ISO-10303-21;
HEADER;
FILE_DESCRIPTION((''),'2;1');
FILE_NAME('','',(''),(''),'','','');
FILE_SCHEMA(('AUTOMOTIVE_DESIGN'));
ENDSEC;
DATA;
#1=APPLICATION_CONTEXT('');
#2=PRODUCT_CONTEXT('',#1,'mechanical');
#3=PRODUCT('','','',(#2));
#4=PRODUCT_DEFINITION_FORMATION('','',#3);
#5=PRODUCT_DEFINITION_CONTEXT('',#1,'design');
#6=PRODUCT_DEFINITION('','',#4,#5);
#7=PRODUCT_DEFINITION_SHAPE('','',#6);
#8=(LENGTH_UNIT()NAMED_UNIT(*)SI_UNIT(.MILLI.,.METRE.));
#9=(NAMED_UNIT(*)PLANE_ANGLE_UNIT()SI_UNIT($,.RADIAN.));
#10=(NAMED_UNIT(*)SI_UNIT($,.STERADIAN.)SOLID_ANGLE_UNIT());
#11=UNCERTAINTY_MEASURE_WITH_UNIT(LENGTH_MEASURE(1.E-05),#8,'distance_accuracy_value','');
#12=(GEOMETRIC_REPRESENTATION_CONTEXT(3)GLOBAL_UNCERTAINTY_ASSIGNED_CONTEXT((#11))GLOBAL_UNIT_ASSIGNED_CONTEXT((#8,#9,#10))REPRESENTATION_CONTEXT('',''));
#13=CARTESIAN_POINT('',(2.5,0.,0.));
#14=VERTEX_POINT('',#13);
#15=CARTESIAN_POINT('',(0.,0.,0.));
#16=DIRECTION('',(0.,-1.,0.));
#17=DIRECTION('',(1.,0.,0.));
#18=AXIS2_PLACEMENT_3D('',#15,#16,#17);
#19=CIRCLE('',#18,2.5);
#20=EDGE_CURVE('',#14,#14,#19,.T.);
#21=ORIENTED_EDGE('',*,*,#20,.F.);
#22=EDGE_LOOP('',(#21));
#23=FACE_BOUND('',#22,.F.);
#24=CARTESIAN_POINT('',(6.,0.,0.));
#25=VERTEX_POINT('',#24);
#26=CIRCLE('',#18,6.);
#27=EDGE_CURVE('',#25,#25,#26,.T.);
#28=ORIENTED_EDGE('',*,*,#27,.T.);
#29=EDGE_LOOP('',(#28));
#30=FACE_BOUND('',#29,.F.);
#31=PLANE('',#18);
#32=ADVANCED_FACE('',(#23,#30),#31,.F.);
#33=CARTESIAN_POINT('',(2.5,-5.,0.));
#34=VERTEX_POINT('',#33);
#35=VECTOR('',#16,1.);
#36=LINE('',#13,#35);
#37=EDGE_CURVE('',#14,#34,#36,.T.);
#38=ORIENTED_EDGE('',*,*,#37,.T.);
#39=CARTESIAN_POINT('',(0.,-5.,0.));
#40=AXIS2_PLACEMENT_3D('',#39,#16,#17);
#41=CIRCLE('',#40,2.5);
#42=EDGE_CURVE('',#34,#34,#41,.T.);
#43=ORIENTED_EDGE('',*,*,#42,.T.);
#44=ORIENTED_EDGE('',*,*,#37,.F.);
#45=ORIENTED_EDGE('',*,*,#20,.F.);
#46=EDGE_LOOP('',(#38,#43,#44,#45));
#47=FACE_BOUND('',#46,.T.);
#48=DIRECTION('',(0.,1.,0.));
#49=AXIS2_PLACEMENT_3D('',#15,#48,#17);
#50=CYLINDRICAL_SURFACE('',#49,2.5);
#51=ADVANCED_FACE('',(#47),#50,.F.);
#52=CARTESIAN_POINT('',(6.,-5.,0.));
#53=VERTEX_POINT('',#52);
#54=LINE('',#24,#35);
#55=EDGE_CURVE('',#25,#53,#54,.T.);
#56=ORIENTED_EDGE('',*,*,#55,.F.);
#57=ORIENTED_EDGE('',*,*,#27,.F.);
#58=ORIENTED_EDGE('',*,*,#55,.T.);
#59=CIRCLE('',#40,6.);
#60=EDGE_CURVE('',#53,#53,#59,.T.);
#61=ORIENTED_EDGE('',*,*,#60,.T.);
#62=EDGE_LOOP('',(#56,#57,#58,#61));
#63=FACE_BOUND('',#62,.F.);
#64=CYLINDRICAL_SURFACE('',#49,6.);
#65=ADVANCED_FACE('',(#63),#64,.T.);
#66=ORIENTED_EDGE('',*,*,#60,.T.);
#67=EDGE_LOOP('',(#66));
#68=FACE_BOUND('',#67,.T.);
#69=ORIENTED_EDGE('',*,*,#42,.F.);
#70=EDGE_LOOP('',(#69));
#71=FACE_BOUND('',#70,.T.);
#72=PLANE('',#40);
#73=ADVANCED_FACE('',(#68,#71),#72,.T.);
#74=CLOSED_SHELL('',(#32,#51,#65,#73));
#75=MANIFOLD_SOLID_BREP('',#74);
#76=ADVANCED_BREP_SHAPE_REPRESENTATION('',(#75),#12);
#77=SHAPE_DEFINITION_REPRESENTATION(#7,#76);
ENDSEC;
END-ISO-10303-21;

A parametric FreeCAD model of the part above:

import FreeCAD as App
import Part
import Sketcher

V = App.Vector
Q = App.Units.Quantity

doc = App.newDocument("Part")
params = doc.addObject("Spreadsheet::Sheet", "Params")
for row, (alias, value) in enumerate([
    ("sketch1_diameter", "12 mm"),
    ("sketch1_diameter2", "5 mm"),
    ("pad1_length", "5 mm"),
], start=1):
    params.set(f"A{row}", alias)
    params.set(f"B{row}", "=" + value)
    params.setAlias(f"B{row}", alias)

body = doc.addObject("PartDesign::Body", "Body")

sketch1 = body.newObject("Sketcher::SketchObject", "Sketch")
sketch1.AttachmentSupport = (doc.getObject("XZ_Plane"), [""])
sketch1.MapMode = "FlatFace"
sketch1.addGeometry([
    Part.Circle(V(0, 0, 0), V(0, 0, 1), 6),
    Part.Circle(V(0, 0, 0), V(0, 0, 1), 2.5),
], False)
sketch1.addConstraint([
    Sketcher.Constraint("Coincident", 0, 3, -1, 1),
    Sketcher.Constraint("Coincident", 1, 3, -1, 1),
    Sketcher.Constraint("Diameter", 0, Q("12 mm")),
    Sketcher.Constraint("Diameter", 1, Q("5 mm")),
])
sketch1.setExpression("Constraints[2]", "Params.sketch1_diameter")
sketch1.setExpression("Constraints[3]", "Params.sketch1_diameter2")
pad1 = body.newObject("PartDesign::Pad", "Pad")
pad1.Profile = sketch1
pad1.setExpression("Length", "Params.pad1_length")
body2 = doc.addObject("PartDesign::Body", "Body001")
doc.recompute()

body2.BaseFeature = body
doc.recompute()
body.Visibility = False

doc.recompute()
